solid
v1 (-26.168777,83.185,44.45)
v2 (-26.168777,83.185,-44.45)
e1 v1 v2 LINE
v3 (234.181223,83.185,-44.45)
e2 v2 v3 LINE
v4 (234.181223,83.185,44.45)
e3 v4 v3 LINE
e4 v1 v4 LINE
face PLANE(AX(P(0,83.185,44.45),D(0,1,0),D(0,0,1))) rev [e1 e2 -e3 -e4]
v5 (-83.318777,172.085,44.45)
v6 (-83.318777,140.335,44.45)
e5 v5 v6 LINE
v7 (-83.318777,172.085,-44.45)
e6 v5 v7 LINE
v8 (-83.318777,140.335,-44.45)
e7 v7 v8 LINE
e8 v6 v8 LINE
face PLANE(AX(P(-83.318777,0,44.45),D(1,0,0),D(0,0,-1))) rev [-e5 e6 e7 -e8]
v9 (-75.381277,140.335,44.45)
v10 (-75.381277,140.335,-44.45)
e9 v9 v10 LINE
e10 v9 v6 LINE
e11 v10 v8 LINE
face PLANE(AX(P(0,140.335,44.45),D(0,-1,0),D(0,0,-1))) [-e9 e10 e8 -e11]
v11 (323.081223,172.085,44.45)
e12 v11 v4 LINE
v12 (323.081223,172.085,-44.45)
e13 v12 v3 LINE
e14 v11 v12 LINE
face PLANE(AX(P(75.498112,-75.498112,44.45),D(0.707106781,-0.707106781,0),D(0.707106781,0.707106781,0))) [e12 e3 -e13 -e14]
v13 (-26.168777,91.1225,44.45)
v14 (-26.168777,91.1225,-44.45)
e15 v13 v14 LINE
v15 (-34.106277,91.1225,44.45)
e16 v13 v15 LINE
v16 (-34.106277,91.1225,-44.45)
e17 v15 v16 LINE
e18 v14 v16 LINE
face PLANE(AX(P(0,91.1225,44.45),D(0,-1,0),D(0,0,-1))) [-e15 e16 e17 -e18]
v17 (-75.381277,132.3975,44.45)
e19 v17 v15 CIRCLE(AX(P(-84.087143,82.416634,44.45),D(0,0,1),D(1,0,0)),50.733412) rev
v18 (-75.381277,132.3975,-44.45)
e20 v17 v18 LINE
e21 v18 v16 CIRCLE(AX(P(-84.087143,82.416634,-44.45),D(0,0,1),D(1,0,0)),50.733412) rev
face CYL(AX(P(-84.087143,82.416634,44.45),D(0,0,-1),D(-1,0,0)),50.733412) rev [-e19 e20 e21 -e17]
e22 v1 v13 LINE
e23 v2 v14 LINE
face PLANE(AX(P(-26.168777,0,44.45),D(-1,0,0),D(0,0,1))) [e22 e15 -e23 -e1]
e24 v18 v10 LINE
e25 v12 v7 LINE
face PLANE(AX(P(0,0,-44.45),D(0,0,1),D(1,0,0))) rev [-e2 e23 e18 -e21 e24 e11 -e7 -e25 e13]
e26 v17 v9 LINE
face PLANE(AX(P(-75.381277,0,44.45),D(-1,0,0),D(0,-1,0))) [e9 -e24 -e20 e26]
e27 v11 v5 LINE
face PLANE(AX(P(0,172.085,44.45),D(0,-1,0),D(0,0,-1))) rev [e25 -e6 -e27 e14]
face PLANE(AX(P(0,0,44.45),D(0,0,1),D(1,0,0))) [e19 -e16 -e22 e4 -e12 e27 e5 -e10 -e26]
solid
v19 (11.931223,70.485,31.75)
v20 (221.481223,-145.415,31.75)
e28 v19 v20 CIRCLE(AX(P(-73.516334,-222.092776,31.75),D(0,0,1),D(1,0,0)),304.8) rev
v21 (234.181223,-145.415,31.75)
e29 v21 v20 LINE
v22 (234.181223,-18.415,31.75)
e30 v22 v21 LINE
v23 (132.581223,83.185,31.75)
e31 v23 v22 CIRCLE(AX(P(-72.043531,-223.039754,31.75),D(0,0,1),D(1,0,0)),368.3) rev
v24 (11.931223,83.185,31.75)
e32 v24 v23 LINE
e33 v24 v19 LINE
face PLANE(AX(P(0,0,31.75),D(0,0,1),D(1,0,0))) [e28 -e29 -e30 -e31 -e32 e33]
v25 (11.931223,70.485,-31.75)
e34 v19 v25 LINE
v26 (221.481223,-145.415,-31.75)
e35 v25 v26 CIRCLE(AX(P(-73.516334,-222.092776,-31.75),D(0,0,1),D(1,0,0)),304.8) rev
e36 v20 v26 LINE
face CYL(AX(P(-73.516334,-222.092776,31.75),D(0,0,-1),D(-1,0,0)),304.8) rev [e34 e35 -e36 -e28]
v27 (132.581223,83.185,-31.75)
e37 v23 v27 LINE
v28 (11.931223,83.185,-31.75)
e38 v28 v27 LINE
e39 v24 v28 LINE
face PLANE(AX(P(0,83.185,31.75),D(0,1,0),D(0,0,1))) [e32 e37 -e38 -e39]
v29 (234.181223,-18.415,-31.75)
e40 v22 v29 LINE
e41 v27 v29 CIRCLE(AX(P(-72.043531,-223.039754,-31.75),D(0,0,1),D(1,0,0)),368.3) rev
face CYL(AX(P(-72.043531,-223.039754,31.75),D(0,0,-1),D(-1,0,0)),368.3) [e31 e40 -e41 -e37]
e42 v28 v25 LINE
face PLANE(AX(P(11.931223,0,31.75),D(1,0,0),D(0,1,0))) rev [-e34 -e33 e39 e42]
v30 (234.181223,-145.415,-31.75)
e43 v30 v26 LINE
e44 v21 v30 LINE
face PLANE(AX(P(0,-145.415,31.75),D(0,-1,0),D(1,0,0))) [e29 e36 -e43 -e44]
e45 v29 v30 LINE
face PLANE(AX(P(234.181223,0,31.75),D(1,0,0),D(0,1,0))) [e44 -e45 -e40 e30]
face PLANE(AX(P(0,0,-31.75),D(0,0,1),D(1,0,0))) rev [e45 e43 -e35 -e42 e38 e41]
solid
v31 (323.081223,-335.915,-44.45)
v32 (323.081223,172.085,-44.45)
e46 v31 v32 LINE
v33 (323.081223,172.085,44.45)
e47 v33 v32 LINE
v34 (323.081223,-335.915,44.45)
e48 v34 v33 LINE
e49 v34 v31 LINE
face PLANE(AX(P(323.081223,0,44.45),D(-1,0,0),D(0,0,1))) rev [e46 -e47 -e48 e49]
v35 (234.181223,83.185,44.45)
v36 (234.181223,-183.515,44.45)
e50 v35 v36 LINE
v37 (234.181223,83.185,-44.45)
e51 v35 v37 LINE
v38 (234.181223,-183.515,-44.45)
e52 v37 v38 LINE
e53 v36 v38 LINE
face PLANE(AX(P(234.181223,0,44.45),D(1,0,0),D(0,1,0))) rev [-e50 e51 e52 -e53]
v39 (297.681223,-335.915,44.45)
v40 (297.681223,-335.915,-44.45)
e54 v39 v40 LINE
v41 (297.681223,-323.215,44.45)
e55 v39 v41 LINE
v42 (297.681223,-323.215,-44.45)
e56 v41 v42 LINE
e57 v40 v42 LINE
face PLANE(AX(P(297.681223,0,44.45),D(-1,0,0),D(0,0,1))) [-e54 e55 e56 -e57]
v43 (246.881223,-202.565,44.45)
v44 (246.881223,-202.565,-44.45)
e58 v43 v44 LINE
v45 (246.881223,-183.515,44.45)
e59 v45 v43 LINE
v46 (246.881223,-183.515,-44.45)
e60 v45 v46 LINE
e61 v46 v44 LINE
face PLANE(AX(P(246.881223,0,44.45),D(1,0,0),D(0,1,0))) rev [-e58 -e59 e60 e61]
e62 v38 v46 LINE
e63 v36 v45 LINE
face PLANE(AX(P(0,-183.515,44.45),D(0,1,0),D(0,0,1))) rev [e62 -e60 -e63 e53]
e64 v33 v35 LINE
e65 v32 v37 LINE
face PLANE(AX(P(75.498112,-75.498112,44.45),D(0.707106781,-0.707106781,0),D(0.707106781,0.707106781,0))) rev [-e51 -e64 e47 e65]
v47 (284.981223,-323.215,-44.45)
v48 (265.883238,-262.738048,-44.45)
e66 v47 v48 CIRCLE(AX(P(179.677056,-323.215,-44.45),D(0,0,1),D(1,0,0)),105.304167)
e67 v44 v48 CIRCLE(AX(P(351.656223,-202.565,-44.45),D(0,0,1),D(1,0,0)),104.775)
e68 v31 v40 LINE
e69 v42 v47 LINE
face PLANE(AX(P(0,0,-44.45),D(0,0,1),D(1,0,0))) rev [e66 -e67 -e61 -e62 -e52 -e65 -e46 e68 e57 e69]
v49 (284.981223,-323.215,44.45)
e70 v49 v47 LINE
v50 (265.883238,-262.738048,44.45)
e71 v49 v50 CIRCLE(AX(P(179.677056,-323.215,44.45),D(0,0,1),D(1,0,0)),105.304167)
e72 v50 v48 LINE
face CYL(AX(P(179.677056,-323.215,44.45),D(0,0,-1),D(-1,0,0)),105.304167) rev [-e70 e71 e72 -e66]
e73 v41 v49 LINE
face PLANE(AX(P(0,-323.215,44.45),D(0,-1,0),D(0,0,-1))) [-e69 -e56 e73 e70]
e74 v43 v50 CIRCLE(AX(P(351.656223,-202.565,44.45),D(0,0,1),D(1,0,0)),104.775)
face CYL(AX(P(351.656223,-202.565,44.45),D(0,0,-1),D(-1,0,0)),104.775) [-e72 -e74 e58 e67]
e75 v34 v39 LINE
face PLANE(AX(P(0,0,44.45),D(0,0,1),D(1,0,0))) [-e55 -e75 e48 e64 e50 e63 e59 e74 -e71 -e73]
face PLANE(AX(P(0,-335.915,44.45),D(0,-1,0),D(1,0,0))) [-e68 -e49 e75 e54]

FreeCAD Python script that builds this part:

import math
import FreeCAD as App
import Part
import Sketcher

V = App.Vector
Q = App.Units.Quantity

doc = App.newDocument("Part")
params = doc.addObject("Spreadsheet::Sheet", "Params")
for row, (alias, value) in enumerate([
    ("sketch1_width", "16 in"),
    ("sketch1_width2", "10.25 in"),
    ("sketch1_height", "1.25 in"),
    ("sketch1_width3", "0.3125 in"),
    ("pad1_length", "3.5 in"),
    ("sketch2_radius", "12 in"),
    ("sketch2_radius2", "14.5 in"),
    ("sketch2_height", "5 in"),
    ("sketch2_width", "0.5 in"),
    ("sketch2_width2", "4.75 in"),
    ("pad2_length", "2.5 in"),
    ("sketch3_width", "1 in"),
    ("sketch3_height", "20 in"),
    ("sketch3_width2", "0.5 in"),
    ("sketch3_height2", "10.5 in"),
    ("sketch3_radius", "4.125 in"),
    ("pad3_length", "3.5 in"),
], start=1):
    params.set(f"A{row}", alias)
    params.set(f"B{row}", "=" + value)
    params.setAlias(f"B{row}", alias)

body = doc.addObject("PartDesign::Body", "Body")

# Sketch on XY plane
sketch1 = body.newObject("Sketcher::SketchObject", "Sketch")
sketch1.AttachmentSupport = (doc.getObject("XY_Plane"), [""])
sketch1.MapMode = "FlatFace"
sketch1.addGeometry(Part.LineSegment(V(-75.381277, 140.335, 0), V(-75.381277, 132.3975, 0)), False)
sketch1.addGeometry(Part.ArcOfCircle(Part.Circle(V(-84.087143, 82.416634, 0), V(0, 0, 1), 50.733412), math.radians(9.880874), math.radians(80.119126)), False)
sketch1.addGeometry(Part.LineSegment(V(-34.106277, 91.1225, 0), V(-26.168777, 91.1225, 0)), False)
sketch1.addGeometry(Part.LineSegment(V(-26.168777, 91.1225, 0), V(-26.168777, 83.185, 0)), False)
sketch1.addGeometry(Part.LineSegment(V(-26.168777, 83.185, 0), V(234.181223, 83.185, 0)), False)
sketch1.addGeometry(Part.LineSegment(V(234.181223, 83.185, 0), V(323.081223, 172.085, 0)), False)
sketch1.addGeometry(Part.LineSegment(V(323.081223, 172.085, 0), V(-83.318777, 172.085, 0)), False)
sketch1.addGeometry(Part.LineSegment(V(-83.318777, 172.085, 0), V(-83.318777, 140.335, 0)), False)
sketch1.addGeometry(Part.LineSegment(V(-83.318777, 140.335, 0), V(-75.381277, 140.335, 0)), False)
sketch1.addConstraint(Sketcher.Constraint("Coincident", 0, 2, 1, 2))
sketch1.addConstraint(Sketcher.Constraint("Coincident", 1, 1, 2, 1))
sketch1.addConstraint(Sketcher.Constraint("Coincident", 2, 2, 3, 1))
sketch1.addConstraint(Sketcher.Constraint("Coincident", 3, 2, 4, 1))
sketch1.addConstraint(Sketcher.Constraint("Coincident", 4, 2, 5, 1))
sketch1.addConstraint(Sketcher.Constraint("Coincident", 5, 2, 6, 1))
sketch1.addConstraint(Sketcher.Constraint("Coincident", 6, 2, 7, 1))
sketch1.addConstraint(Sketcher.Constraint("Coincident", 7, 2, 8, 1))
sketch1.addConstraint(Sketcher.Constraint("Coincident", 8, 2, 0, 1))
sketch1.addConstraint(Sketcher.Constraint("Vertical", 0))
sketch1.addConstraint(Sketcher.Constraint("Horizontal", 2))
sketch1.addConstraint(Sketcher.Constraint("Vertical", 3))
sketch1.addConstraint(Sketcher.Constraint("Horizontal", 4))
sketch1.addConstraint(Sketcher.Constraint("Horizontal", 6))
sketch1.addConstraint(Sketcher.Constraint("Vertical", 7))
sketch1.addConstraint(Sketcher.Constraint("Horizontal", 8))
sketch1.addConstraint(Sketcher.Constraint("Equal", 2, 8))
sketch1.addConstraint(Sketcher.Constraint("Equal", 8, 0))
sketch1.addConstraint(Sketcher.Constraint("Equal", 0, 3))
sketch1.addConstraint(Sketcher.Constraint("DistanceX", 6, 2, 6, 1, Q("16 in")))
sketch1.addConstraint(Sketcher.Constraint("Angle", 5, Q("45 deg")))
sketch1.addConstraint(Sketcher.Constraint("DistanceX", 4, 1, 4, 2, Q("10.25 in")))
sketch1.addConstraint(Sketcher.Constraint("DistanceY", 7, 2, 7, 1, Q("1.25 in")))
sketch1.addConstraint(Sketcher.Constraint("DistanceX", 4, 2, 5, 2, Q("3.5 in")))
sketch1.addConstraint(Sketcher.Constraint("DistanceX", 2, 1, 2, 2, Q("0.3125 in")))
sketch1.addConstraint(Sketcher.Constraint("DistanceY", -1, 1, 3, 2, Q("3.275 in")))
sketch1.addConstraint(Sketcher.Constraint("Radius", 1, 50.733412))
sketch1.addConstraint(Sketcher.Constraint("DistanceX", 1, 3, -1, 1, 84.087143))
sketch1.setExpression("Constraints[19]", "Params.sketch1_width")
sketch1.setExpression("Constraints[21]", "Params.sketch1_width2")
sketch1.setExpression("Constraints[22]", "Params.sketch1_height")
sketch1.setExpression("Constraints[24]", "Params.sketch1_width3")
pad1 = body.newObject("PartDesign::Pad", "Pad")
pad1.Profile = sketch1
pad1.setExpression("Length", "Params.pad1_length")
pad1.Midplane = True
body2 = doc.addObject("PartDesign::Body", "Body001")

# Sketch on XY plane
sketch2 = body2.newObject("Sketcher::SketchObject", "Sketch001")
sketch2.AttachmentSupport = (doc.getObject("XY_Plane001"), [""])
sketch2.MapMode = "FlatFace"
sketch2.addGeometry(Part.ArcOfCircle(Part.Circle(V(-72.043531, -223.039754, 0), V(0, 0, 1), 368.3), math.radians(33.751541), math.radians(56.248459)), False)
sketch2.addGeometry(Part.LineSegment(V(132.581223, 83.185, 0), V(11.931223, 83.185, 0)), False)
sketch2.addGeometry(Part.LineSegment(V(11.931223, 83.185, 0), V(11.931223, 70.485, 0)), False)
sketch2.addGeometry(Part.ArcOfCircle(Part.Circle(V(-73.516334, -222.092776, 0), V(0, 0, 1), 304.8), math.radians(14.570289), math.radians(73.719517)), False)
sketch2.addGeometry(Part.LineSegment(V(221.481223, -145.415, 0), V(234.181223, -145.415, 0)), False)
sketch2.addGeometry(Part.LineSegment(V(234.181223, -145.415, 0), V(234.181223, -18.415, 0)), False)
sketch2.addConstraint(Sketcher.Constraint("Coincident", 0, 2, 1, 1))
sketch2.addConstraint(Sketcher.Constraint("Coincident", 1, 2, 2, 1))
sketch2.addConstraint(Sketcher.Constraint("Coincident", 2, 2, 3, 2))
sketch2.addConstraint(Sketcher.Constraint("Coincident", 3, 1, 4, 1))
sketch2.addConstraint(Sketcher.Constraint("Coincident", 4, 2, 5, 1))
sketch2.addConstraint(Sketcher.Constraint("Coincident", 5, 2, 0, 1))
sketch2.addConstraint(Sketcher.Constraint("Horizontal", 1))
sketch2.addConstraint(Sketcher.Constraint("Vertical", 2))
sketch2.addConstraint(Sketcher.Constraint("Horizontal", 4))
sketch2.addConstraint(Sketcher.Constraint("Vertical", 5))
sketch2.addConstraint(Sketcher.Constraint("Equal", 4, 2))
sketch2.addConstraint(Sketcher.Constraint("Radius", 3, Q("12 in")))
sketch2.addConstraint(Sketcher.Constraint("Radius", 0, Q("14.5 in")))
sketch2.addConstraint(Sketcher.Constraint("DistanceY", 5, 1, 5, 2, Q("5 in")))
sketch2.addConstraint(Sketcher.Constraint("DistanceX", 4, 1, 4, 2, Q("0.5 in")))
sketch2.addConstraint(Sketcher.Constraint("DistanceX", 0, 2, 4, 2, Q("4 in")))
sketch2.addConstraint(Sketcher.Constraint("DistanceY", 4, 2, 0, 2, Q("9 in")))
sketch2.addConstraint(Sketcher.Constraint("DistanceX", 1, 2, 1, 1, Q("4.75 in")))
sketch2.addConstraint(Sketcher.Constraint("DistanceY", -1, 1, 1, 2, Q("3.275 in")))
sketch2.addConstraint(Sketcher.Constraint("DistanceX", 0, 3, -1, 1, 72.043531))
sketch2.setExpression("Constraints[11]", "Params.sketch2_radius")
sketch2.setExpression("Constraints[12]", "Params.sketch2_radius2")
sketch2.setExpression("Constraints[13]", "Params.sketch2_height")
sketch2.setExpression("Constraints[14]", "Params.sketch2_width")
sketch2.setExpression("Constraints[17]", "Params.sketch2_width2")
pad2 = body2.newObject("PartDesign::Pad", "Pad001")
pad2.Profile = sketch2
pad2.setExpression("Length", "Params.pad2_length")
pad2.Midplane = True
body3 = doc.addObject("PartDesign::Body", "Body002")

# Sketch on XY plane
sketch3 = body3.newObject("Sketcher::SketchObject", "Sketch002")
sketch3.AttachmentSupport = (doc.getObject("XY_Plane002"), [""])
sketch3.MapMode = "FlatFace"
sketch3.addGeometry(Part.LineSegment(V(323.081223, -335.915, 0), V(323.081223, 172.085, 0)), False)
sketch3.addGeometry(Part.LineSegment(V(323.081223, 172.085, 0), V(234.181223, 83.185, 0)), False)
sketch3.addGeometry(Part.LineSegment(V(234.181223, 83.185, 0), V(234.181223, -183.515, 0)), False)
sketch3.addGeometry(Part.LineSegment(V(234.181223, -183.515, 0), V(246.881223, -183.515, 0)), False)
sketch3.addGeometry(Part.LineSegment(V(246.881223, -183.515, 0), V(246.881223, -202.565, 0)), False)
sketch3.addGeometry(Part.ArcOfCircle(Part.Circle(V(351.656223, -202.565, 0), V(0, 0, 1), 104.775), math.radians(180), math.radians(215.051137)), False)
sketch3.addGeometry(Part.ArcOfCircle(Part.Circle(V(179.677056, -323.215, 0), V(0, 0, 1), 105.304167), math.radians(0), math.radians(35.051137)), False)
sketch3.addGeometry(Part.LineSegment(V(284.981223, -323.215, 0), V(297.681223, -323.215, 0)), False)
sketch3.addGeometry(Part.LineSegment(V(297.681223, -323.215, 0), V(297.681223, -335.915, 0)), False)
sketch3.addGeometry(Part.LineSegment(V(297.681223, -335.915, 0), V(323.081223, -335.915, 0)), False)
sketch3.addConstraint(Sketcher.Constraint("Coincident", 0, 2, 1, 1))
sketch3.addConstraint(Sketcher.Constraint("Coincident", 1, 2, 2, 1))
sketch3.addConstraint(Sketcher.Constraint("Coincident", 2, 2, 3, 1))
sketch3.addConstraint(Sketcher.Constraint("Coincident", 3, 2, 4, 1))
sketch3.addConstraint(Sketcher.Constraint("Tangent", 4, 2, 5, 1))
sketch3.addConstraint(Sketcher.Constraint("Tangent", 5, 2, 6, 2))
sketch3.addConstraint(Sketcher.Constraint("Coincident", 6, 1, 7, 1))
sketch3.addConstraint(Sketcher.Constraint("Coincident", 7, 2, 8, 1))
sketch3.addConstraint(Sketcher.Constraint("Coincident", 8, 2, 9, 1))
sketch3.addConstraint(Sketcher.Constraint("Coincident", 9, 2, 0, 1))
sketch3.addConstraint(Sketcher.Constraint("Vertical", 0))
sketch3.addConstraint(Sketcher.Constraint("Vertical", 2))
sketch3.addConstraint(Sketcher.Constraint("Horizontal", 3))
sketch3.addConstraint(Sketcher.Constraint("Vertical", 4))
sketch3.addConstraint(Sketcher.Constraint("Horizontal", 7))
sketch3.addConstraint(Sketcher.Constraint("Vertical", 8))
sketch3.addConstraint(Sketcher.Constraint("Horizontal", 9))
sketch3.addConstraint(Sketcher.Constraint("Equal", 3, 7))
sketch3.addConstraint(Sketcher.Constraint("Equal", 7, 8))
sketch3.addConstraint(Sketcher.Constraint("DistanceX", 9, 1, 9, 2, Q("1 in")))
sketch3.addConstraint(Sketcher.Constraint("DistanceY", 0, 1, 0, 2, Q("20 in")))
sketch3.addConstraint(Sketcher.Constraint("DistanceX", 3, 1, 3, 2, Q("0.5 in")))
sketch3.addConstraint(Sketcher.Constraint("DistanceY", 2, 2, 2, 1, Q("10.5 in")))
sketch3.addConstraint(Sketcher.Constraint("Angle", 1, Q("-135 deg")))
sketch3.addConstraint(Sketcher.Constraint("Radius", 5, Q("4.125 in")))
sketch3.addConstraint(Sketcher.Constraint("DistanceY", 6, 3, 1, 2, Q("16 in")))
sketch3.addConstraint(Sketcher.Constraint("DistanceY", 2, 2, 0, 2, Q("14 in")))
sketch3.addConstraint(Sketcher.Constraint("DistanceY", 4, 2, 4, 1, Q("0.75 in")))
sketch3.addConstraint(Sketcher.Constraint("DistanceY", 5, 3, -1, 1, Q("7.975 in")))
sketch3.addConstraint(Sketcher.Constraint("DistanceX", -1, 1, 6, 3, Q("7.0738999 in")))
sketch3.setExpression("Constraints[19]", "Params.sketch3_width")
sketch3.setExpression("Constraints[20]", "Params.sketch3_height")
sketch3.setExpression("Constraints[21]", "Params.sketch3_width2")
sketch3.setExpression("Constraints[22]", "Params.sketch3_height2")
sketch3.setExpression("Constraints[24]", "Params.sketch3_radius")
pad3 = body3.newObject("PartDesign::Pad", "Pad002")
pad3.Profile = sketch3
pad3.setExpression("Length", "Params.pad3_length")
pad3.Midplane = True

doc.recompute()
